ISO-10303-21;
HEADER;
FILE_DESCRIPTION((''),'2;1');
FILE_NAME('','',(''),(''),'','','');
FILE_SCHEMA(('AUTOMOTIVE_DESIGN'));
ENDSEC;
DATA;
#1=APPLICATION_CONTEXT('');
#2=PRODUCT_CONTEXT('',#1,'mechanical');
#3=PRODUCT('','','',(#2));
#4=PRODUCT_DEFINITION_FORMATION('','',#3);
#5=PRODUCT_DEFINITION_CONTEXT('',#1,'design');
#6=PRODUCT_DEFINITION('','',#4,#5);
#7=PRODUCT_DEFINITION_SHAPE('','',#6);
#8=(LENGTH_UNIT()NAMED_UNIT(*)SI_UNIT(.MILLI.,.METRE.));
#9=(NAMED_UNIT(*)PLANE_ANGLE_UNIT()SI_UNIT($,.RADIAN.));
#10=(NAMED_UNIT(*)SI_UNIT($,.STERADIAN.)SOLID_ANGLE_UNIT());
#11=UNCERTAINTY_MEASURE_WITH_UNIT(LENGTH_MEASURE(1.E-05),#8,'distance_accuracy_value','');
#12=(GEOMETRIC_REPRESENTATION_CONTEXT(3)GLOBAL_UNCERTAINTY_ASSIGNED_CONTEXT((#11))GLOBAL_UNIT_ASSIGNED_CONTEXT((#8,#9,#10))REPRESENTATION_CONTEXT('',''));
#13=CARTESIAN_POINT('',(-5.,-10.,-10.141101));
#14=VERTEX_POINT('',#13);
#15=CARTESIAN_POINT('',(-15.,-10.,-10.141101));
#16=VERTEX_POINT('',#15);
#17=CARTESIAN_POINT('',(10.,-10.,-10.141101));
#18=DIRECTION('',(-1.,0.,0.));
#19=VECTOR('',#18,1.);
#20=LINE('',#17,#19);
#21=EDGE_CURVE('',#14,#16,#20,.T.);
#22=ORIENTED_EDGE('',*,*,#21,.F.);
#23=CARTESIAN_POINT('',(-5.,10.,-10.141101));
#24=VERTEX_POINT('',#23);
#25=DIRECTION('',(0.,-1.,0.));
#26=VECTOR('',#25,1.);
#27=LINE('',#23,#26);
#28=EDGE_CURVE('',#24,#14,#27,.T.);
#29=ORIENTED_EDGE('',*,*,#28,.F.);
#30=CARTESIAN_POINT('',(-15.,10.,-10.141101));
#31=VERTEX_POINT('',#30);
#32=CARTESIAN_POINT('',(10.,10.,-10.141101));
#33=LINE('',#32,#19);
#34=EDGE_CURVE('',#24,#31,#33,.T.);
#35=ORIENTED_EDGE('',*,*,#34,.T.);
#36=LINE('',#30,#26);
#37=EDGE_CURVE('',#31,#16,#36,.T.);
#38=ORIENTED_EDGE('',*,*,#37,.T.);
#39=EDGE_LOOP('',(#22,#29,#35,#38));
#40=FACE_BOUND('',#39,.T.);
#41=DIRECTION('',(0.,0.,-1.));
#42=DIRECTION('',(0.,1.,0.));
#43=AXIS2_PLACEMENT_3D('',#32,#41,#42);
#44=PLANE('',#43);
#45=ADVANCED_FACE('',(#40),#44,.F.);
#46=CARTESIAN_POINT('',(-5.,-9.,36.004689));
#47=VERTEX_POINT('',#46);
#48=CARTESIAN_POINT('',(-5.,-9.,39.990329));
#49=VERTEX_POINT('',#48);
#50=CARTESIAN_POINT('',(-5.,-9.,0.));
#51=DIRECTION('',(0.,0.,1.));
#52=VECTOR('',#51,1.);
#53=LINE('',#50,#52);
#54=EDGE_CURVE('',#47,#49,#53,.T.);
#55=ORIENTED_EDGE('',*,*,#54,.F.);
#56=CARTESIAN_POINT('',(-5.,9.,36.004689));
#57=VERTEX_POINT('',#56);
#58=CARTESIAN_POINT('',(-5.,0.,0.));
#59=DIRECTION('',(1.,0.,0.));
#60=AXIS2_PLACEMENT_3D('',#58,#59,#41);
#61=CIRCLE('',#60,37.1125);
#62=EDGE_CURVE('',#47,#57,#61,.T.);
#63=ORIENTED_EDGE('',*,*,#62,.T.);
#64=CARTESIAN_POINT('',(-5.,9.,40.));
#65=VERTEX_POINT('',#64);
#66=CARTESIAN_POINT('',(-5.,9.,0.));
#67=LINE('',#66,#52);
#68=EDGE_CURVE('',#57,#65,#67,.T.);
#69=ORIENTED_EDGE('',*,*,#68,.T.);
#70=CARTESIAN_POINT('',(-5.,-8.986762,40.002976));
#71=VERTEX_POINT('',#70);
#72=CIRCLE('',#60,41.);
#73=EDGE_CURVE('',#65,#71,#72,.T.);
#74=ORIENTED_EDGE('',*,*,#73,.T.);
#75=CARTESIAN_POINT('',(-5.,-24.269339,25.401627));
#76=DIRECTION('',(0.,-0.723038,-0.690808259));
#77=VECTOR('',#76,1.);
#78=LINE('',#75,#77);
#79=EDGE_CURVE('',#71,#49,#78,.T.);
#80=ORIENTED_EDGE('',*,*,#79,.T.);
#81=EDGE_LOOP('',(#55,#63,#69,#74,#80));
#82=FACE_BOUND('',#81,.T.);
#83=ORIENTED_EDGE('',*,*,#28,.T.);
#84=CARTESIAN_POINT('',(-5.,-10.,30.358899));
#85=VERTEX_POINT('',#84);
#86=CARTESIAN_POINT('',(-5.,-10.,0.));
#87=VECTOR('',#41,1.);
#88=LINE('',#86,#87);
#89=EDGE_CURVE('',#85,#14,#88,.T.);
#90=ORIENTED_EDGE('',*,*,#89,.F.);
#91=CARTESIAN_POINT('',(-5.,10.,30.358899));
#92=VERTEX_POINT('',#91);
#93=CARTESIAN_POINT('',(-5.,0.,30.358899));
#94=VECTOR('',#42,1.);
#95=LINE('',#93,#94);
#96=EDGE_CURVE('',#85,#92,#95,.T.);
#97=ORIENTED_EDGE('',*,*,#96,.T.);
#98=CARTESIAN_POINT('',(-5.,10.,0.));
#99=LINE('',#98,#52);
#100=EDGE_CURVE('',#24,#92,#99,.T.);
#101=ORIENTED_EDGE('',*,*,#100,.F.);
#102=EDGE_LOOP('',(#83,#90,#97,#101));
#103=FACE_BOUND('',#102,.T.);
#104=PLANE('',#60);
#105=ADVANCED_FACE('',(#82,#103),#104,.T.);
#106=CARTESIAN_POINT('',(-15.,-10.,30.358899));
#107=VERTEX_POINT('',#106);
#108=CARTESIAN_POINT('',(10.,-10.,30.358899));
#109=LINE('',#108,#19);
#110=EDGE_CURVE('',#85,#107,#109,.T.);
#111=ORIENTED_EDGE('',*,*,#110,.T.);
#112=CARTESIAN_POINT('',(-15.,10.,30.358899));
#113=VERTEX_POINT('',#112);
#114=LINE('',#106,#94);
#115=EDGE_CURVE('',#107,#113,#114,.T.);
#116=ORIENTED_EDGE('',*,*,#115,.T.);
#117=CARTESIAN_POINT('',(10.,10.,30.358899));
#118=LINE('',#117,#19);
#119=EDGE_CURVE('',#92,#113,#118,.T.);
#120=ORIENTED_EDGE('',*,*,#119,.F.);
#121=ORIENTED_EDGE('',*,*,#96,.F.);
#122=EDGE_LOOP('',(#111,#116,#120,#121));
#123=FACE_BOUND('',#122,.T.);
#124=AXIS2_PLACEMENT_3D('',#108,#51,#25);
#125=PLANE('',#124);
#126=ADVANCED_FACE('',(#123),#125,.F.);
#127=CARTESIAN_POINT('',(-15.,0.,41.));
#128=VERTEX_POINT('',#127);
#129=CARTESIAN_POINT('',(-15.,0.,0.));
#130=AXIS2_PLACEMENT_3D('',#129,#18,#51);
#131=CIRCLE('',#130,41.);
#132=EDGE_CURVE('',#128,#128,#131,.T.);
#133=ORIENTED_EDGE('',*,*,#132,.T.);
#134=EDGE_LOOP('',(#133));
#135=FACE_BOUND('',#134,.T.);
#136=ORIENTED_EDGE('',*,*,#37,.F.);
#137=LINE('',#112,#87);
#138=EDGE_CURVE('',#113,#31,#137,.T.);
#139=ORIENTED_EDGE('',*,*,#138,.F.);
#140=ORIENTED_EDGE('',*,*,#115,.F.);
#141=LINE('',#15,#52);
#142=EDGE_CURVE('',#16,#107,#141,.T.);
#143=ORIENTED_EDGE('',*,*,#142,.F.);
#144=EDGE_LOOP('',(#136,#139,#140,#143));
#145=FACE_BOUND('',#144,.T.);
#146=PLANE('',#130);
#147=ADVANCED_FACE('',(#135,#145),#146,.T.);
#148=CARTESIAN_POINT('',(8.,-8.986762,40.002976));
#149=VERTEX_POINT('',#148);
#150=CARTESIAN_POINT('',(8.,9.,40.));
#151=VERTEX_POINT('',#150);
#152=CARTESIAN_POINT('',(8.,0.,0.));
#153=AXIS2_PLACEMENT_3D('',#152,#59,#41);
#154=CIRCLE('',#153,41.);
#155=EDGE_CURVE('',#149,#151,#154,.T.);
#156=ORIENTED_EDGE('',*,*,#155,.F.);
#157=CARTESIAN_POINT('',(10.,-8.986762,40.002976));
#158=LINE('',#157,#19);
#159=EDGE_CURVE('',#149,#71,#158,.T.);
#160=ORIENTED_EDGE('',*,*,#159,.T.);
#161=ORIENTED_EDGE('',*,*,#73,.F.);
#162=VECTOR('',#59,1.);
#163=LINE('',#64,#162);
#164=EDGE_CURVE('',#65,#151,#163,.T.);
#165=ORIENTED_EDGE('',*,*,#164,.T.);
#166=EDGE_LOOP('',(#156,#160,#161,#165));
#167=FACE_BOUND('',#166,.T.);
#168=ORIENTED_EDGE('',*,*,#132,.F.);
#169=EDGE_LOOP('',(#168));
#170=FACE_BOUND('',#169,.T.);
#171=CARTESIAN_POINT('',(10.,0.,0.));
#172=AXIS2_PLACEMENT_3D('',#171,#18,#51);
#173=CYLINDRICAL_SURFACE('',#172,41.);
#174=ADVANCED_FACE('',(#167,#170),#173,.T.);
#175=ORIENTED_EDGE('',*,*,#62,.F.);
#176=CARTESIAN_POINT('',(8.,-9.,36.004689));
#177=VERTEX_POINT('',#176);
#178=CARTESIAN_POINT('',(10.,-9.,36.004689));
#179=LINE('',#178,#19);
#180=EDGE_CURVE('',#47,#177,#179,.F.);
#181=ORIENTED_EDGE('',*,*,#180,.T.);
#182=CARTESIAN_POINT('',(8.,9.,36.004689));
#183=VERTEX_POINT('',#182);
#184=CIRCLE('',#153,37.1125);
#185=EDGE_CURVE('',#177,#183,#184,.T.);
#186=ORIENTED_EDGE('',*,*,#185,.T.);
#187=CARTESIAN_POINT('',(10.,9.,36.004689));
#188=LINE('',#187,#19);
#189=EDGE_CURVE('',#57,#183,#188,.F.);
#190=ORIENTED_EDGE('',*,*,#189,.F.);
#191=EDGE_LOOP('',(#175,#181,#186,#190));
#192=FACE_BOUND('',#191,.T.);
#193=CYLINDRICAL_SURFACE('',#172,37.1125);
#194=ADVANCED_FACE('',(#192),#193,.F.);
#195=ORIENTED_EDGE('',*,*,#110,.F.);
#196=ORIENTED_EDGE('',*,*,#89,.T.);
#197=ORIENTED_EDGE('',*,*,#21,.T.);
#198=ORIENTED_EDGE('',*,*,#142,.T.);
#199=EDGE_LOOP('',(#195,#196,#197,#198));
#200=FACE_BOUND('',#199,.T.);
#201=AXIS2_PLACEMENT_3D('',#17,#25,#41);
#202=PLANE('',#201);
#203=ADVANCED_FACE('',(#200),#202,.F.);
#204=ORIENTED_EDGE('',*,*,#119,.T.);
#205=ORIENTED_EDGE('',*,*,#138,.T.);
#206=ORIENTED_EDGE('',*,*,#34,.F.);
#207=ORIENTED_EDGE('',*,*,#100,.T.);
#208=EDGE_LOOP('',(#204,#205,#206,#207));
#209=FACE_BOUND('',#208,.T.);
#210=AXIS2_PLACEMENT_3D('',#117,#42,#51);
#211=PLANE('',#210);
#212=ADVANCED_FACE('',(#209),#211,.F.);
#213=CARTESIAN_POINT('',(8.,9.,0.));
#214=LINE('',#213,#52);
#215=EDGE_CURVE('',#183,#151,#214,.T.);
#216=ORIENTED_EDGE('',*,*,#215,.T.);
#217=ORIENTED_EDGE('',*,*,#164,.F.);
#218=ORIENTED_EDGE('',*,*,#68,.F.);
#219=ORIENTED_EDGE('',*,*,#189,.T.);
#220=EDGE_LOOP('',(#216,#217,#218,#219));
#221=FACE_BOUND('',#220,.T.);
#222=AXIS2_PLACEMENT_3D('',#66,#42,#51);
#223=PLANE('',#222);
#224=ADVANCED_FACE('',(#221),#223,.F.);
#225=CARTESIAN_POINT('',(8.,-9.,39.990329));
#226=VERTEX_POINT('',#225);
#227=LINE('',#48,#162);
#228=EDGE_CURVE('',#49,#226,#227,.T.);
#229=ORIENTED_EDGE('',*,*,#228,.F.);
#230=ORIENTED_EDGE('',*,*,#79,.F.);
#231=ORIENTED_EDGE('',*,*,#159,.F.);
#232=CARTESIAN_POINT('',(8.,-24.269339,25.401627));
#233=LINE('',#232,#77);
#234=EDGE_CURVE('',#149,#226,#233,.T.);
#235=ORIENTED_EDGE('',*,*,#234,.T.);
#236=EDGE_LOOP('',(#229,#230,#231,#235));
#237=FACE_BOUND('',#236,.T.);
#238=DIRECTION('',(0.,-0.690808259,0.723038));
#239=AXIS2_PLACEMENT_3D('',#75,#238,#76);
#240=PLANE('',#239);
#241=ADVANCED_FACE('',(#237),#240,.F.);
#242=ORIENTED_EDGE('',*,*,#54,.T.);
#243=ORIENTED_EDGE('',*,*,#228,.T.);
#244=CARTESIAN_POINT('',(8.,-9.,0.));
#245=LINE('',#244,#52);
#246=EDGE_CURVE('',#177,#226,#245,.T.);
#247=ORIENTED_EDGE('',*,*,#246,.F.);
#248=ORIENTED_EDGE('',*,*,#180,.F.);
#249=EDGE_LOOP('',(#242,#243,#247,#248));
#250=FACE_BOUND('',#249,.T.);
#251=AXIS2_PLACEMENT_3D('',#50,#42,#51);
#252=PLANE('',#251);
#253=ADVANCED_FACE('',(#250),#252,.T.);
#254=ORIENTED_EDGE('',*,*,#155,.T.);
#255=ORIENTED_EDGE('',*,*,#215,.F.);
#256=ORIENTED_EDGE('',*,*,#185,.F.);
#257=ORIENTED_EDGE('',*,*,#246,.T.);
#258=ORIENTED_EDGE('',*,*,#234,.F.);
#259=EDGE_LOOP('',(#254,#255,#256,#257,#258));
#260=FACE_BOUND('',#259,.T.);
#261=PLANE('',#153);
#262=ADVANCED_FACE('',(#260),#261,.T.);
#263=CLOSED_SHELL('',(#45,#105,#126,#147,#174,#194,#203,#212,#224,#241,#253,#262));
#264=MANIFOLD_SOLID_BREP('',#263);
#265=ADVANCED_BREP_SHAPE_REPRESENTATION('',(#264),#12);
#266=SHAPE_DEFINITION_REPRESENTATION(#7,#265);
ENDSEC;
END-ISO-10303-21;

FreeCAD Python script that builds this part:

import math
import FreeCAD as App
import Part
import Sketcher

V = App.Vector
Q = App.Units.Quantity

doc = App.newDocument("Part")
body = doc.addObject("PartDesign::Body", "Body")

sketch1 = body.newObject("Sketcher::SketchObject", "Sketch")
sketch1.AttachmentSupport = (doc.getObject("YZ_Plane"), [""])
sketch1.MapMode = "FlatFace"
sketch1.addGeometry([
    Part.Circle(V(0, 0, 0), V(0, 0, 1), 41),
    Part.Circle(V(0, 0, 0), V(0, 0, 1), 37),
], False)
sketch1.addConstraint([
    Sketcher.Constraint("Coincident", 0, 3, -1, 1),
    Sketcher.Constraint("Coincident", 1, 3, -1, 1),
    Sketcher.Constraint("Diameter", 0, Q("82 mm")),
    Sketcher.Constraint("Diameter", 1, Q("74.225 mm")),
])
pad1 = body.newObject("PartDesign::Pad", "Pad")
pad1.Profile = sketch1
pad1.Length = 10

sketch2 = body.newObject("Sketcher::SketchObject", "Sketch001")
sketch2.AttachmentSupport = (doc.getObject("YZ_Plane"), [""])
sketch2.MapMode = "FlatFace"
sketch2.addGeometry(Part.Circle(V(0, 0, 0), V(0, 0, 1), 41), False)
sketch2.addConstraint([
    Sketcher.Constraint("Coincident", 0, 3, -1, 1),
    Sketcher.Constraint("Diameter", 0, Q("82 mm")),
])
pad2 = body.newObject("PartDesign::Pad", "Pad001")
pad2.Profile = sketch2
pad2.Length = 10
pad2.Reversed = True

sketch3 = body.newObject("Sketcher::SketchObject", "Sketch002")
sketch3.AttachmentSupport = (doc.getObject("YZ_Plane"), [""])
sketch3.MapMode = "FlatFace"
sketch3.addGeometry([
    Part.Circle(V(0, 0, 0), V(0, 0, 1), 29),
    Part.Circle(V(0, 0, 0), V(0, 0, 1), 23),
], False)
sketch3.addConstraint([
    Sketcher.Constraint("Coincident", 0, 3, -1, 1),
    Sketcher.Constraint("Coincident", 1, 3, -1, 1),
    Sketcher.Constraint("Diameter", 0, Q("58.5 mm")),
    Sketcher.Constraint("Diameter", 1, Q("46.5 mm")),
])
pocket1 = body.newObject("PartDesign::Pocket", "Pocket")
pocket1.Profile = sketch3
pocket1.Length = 5

sketch4 = body.newObject("Sketcher::SketchObject", "Sketch003")
sketch4.AttachmentSupport = (doc.getObject("YZ_Plane"), [""])
sketch4.MapMode = "FlatFace"
sketch4.AttachmentOffset = App.Placement(V(0, 0, -10), App.Rotation())
sketch4.addGeometry(Part.Circle(V(0, 0, 0), V(0, 0, 1), 41), False)
sketch4.addConstraint([
    Sketcher.Constraint("Coincident", 0, 3, -1, 1),
    Sketcher.Constraint("Diameter", 0, Q("82 mm")),
])
pad3 = body.newObject("PartDesign::Pad", "Pad002")
pad3.Profile = sketch4
pad3.Length = 5
pad3.Reversed = True

sketch5 = body.newObject("Sketcher::SketchObject", "Sketch004")
sketch5.AttachmentSupport = (doc.getObject("YZ_Plane"), [""])
sketch5.MapMode = "FlatFace"
sketch5.AttachmentOffset = App.Placement(V(0, 0, 10), App.Rotation())
sketch5.addGeometry([
    Part.Circle(V(0, 0, 0), V(0, 0, 1), 41),
    Part.Circle(V(0, 0, 0), V(0, 0, 1), 35),
], False)
sketch5.addConstraint([
    Sketcher.Constraint("Coincident", 0, 3, -1, 1),
    Sketcher.Constraint("Coincident", 1, 3, -1, 1),
    Sketcher.Constraint("Diameter", 0, Q("82 mm")),
    Sketcher.Constraint("Diameter", 1, Q("69.225 mm")),
])
pad4 = body.newObject("PartDesign::Pad", "Pad003")
pad4.Profile = sketch5
pad4.Length = 2
pad4.Reversed = True

sketch6 = body.newObject("Sketcher::SketchObject", "Sketch005")
sketch6.AttachmentSupport = (doc.getObject("YZ_Plane"), [""])
sketch6.MapMode = "FlatFace"
sketch6.AttachmentOffset = App.Placement(V(0, 0, -15), App.Rotation())
sketch6.addGeometry([
    Part.LineSegment(V(10, -10, 0), V(-10, -10, 0)),
    Part.LineSegment(V(-10, -10, 0), V(-10, 30, 0)),
    Part.LineSegment(V(-10, 30, 0), V(10, 30, 0)),
    Part.LineSegment(V(10, 30, 0), V(10, -10, 0)),
], False)
sketch6.addConstraint([
    Sketcher.Constraint("Coincident", 0, 2, 1, 1),
    Sketcher.Constraint("Coincident", 1, 2, 2, 1),
    Sketcher.Constraint("Coincident", 2, 2, 3, 1),
    Sketcher.Constraint("Coincident", 3, 2, 0, 1),
    Sketcher.Constraint("Horizontal", 0),
    Sketcher.Constraint("Vertical", 1),
    Sketcher.Constraint("Horizontal", 2),
    Sketcher.Constraint("Vertical", 3),
    Sketcher.Constraint("DistanceX", 0, 2, 0, 1, Q("20 mm")),
    Sketcher.Constraint("DistanceY", 1, 1, 1, 2, Q("40.5 mm")),
    Sketcher.Constraint("DistanceX", 0, 2, -1, 1, Q("10 mm")),
    Sketcher.Constraint("DistanceY", 0, 2, -1, 1, Q("10.141101 mm")),
])
pocket2 = body.newObject("PartDesign::Pocket", "Pocket001")
pocket2.Profile = sketch6
pocket2.Length = 25
pocket2.Reversed = True

sketch7 = body.newObject("Sketcher::SketchObject", "Sketch006")
sketch7.AttachmentSupport = (doc.getObject("YZ_Plane"), [""])
sketch7.MapMode = "FlatFace"
sketch7.AttachmentOffset = App.Placement(V(0, 0, 10), App.Rotation())
sketch7.addGeometry([
    Part.Circle(V(0, 0, 0), V(0, 0, 1), 41),
    Part.Circle(V(0, 0, 0), V(0, 0, 1), 35),
], False)
sketch7.addConstraint([
    Sketcher.Constraint("Coincident", 0, 3, -1, 1),
    Sketcher.Constraint("Coincident", 1, 3, -1, 1),
    Sketcher.Constraint("Diameter", 0, Q("82 mm")),
    Sketcher.Constraint("Diameter", 1, Q("69.225 mm")),
])
pocket3 = body.newObject("PartDesign::Pocket", "Pocket002")
pocket3.Profile = sketch7
pocket3.Length = 2

sketch8 = body.newObject("Sketcher::SketchObject", "Sketch007")
sketch8.AttachmentSupport = (doc.getObject("YZ_Plane"), [""])
sketch8.MapMode = "FlatFace"
sketch8.addGeometry([
    Part.Circle(V(0, 0, 0), V(0, 0, 1), 37.11),
    Part.Circle(V(0, 0, 0), V(0, 0, 1), 29.25),
    Part.Circle(V(0, 0, 0), V(0, 0, 1), 23.25),
    Part.Circle(V(-14.5, 25.25, 0), V(0, 0, 1), 0.13),
], False)
sketch8.addConstraint([
    Sketcher.Constraint("Coincident", 0, 3, -1, 1),
    Sketcher.Constraint("Coincident", 1, 3, -1, 1),
    Sketcher.Constraint("Coincident", 2, 3, -1, 1),
    Sketcher.Constraint("Diameter", 1, Q("58.5 mm")),
    Sketcher.Constraint("Diameter", 2, Q("46.5 mm")),
    Sketcher.Constraint("Diameter", 0, Q("74.225 mm")),
    Sketcher.Constraint("Diameter", 3, Q("0.263478 mm")),
    Sketcher.Constraint("DistanceX", 3, 3, -1, 1, Q("14.504136 mm")),
    Sketcher.Constraint("DistanceY", -1, 1, 3, 3, Q("25.248825 mm")),
])
pocket4 = body.newObject("PartDesign::Pocket", "Pocket003")
pocket4.Profile = sketch8
pocket4.Length = 5

sketch9 = body.newObject("Sketcher::SketchObject", "Sketch008")
sketch9.AttachmentSupport = (doc.getObject("YZ_Plane"), [""])
sketch9.MapMode = "FlatFace"
sketch9.AttachmentOffset = App.Placement(V(0, 0, 8), App.Rotation())
sketch9.addGeometry([
    Part.LineSegment(V(3.696, 52.12, 0), V(-8.987, 40.003, 0)),
    Part.LineSegment(V(-8.987, 40.003, 0), V(-9, 39.99, 0)),
    Part.LineSegment(V(-9, 39.99, 0), V(-9, 36.005, 0)),
    Part.ArcOfCircle(Part.Circle(V(0, 0, 0), V(0, 0, 1), 37.112), math.radians(104), math.radians(270)),
    Part.ArcOfCircle(Part.Circle(V(0, 0, 0), V(0, 0, 1), 37.112), math.radians(-90), math.radians(76)),
    Part.LineSegment(V(9, 36.005, 0), V(9, 40, 0)),
    Part.LineSegment(V(9, 40, 0), V(3.696, 52.12, 0)),
], False)
sketch9.addConstraint([
    Sketcher.Constraint("Coincident", 0, 2, 1, 1),
    Sketcher.Constraint("Coincident", 1, 2, 2, 1),
    Sketcher.Constraint("Coincident", 2, 2, 3, 1),
    Sketcher.Constraint("Tangent", 3, 2, 4, 1),
    Sketcher.Constraint("Coincident", 4, 2, 5, 1),
    Sketcher.Constraint("Coincident", 5, 2, 6, 1),
    Sketcher.Constraint("Coincident", 6, 2, 0, 1),
    Sketcher.Constraint("Vertical", 2),
    Sketcher.Constraint("Vertical", 5),
    Sketcher.Constraint("Coincident", 3, 3, -1, 1),
    Sketcher.Constraint("Equal", 3, 4),
    Sketcher.Constraint("PointOnObject", 3, 2, -2),
    Sketcher.Constraint("Parallel", 0, 1),
    Sketcher.Constraint("Horizontal", 2, 2, 4, 2),
    Sketcher.Constraint("DistanceX", 1, 2, -1, 1, Q("9 mm")),
    Sketcher.Constraint("DistanceY", -1, 1, 5, 2, Q("40 mm")),
    Sketcher.Constraint("Radius", 3, Q("37.1125 mm")),
    Sketcher.Constraint("DistanceY", 2, 2, 2, 1, Q("3.985639 mm")),
    Sketcher.Constraint("DistanceX", -1, 1, 6, 2, Q("3.6961 mm")),
    Sketcher.Constraint("Distance", 1, Q("0.018309 mm")),
    Sketcher.Constraint("DistanceY", 0, 2, 6, 2, Q("12.117518 mm")),
])
pocket5 = body.newObject("PartDesign::Pocket", "Pocket004")
pocket5.Profile = sketch9
pocket5.Length = 13

doc.recompute()
